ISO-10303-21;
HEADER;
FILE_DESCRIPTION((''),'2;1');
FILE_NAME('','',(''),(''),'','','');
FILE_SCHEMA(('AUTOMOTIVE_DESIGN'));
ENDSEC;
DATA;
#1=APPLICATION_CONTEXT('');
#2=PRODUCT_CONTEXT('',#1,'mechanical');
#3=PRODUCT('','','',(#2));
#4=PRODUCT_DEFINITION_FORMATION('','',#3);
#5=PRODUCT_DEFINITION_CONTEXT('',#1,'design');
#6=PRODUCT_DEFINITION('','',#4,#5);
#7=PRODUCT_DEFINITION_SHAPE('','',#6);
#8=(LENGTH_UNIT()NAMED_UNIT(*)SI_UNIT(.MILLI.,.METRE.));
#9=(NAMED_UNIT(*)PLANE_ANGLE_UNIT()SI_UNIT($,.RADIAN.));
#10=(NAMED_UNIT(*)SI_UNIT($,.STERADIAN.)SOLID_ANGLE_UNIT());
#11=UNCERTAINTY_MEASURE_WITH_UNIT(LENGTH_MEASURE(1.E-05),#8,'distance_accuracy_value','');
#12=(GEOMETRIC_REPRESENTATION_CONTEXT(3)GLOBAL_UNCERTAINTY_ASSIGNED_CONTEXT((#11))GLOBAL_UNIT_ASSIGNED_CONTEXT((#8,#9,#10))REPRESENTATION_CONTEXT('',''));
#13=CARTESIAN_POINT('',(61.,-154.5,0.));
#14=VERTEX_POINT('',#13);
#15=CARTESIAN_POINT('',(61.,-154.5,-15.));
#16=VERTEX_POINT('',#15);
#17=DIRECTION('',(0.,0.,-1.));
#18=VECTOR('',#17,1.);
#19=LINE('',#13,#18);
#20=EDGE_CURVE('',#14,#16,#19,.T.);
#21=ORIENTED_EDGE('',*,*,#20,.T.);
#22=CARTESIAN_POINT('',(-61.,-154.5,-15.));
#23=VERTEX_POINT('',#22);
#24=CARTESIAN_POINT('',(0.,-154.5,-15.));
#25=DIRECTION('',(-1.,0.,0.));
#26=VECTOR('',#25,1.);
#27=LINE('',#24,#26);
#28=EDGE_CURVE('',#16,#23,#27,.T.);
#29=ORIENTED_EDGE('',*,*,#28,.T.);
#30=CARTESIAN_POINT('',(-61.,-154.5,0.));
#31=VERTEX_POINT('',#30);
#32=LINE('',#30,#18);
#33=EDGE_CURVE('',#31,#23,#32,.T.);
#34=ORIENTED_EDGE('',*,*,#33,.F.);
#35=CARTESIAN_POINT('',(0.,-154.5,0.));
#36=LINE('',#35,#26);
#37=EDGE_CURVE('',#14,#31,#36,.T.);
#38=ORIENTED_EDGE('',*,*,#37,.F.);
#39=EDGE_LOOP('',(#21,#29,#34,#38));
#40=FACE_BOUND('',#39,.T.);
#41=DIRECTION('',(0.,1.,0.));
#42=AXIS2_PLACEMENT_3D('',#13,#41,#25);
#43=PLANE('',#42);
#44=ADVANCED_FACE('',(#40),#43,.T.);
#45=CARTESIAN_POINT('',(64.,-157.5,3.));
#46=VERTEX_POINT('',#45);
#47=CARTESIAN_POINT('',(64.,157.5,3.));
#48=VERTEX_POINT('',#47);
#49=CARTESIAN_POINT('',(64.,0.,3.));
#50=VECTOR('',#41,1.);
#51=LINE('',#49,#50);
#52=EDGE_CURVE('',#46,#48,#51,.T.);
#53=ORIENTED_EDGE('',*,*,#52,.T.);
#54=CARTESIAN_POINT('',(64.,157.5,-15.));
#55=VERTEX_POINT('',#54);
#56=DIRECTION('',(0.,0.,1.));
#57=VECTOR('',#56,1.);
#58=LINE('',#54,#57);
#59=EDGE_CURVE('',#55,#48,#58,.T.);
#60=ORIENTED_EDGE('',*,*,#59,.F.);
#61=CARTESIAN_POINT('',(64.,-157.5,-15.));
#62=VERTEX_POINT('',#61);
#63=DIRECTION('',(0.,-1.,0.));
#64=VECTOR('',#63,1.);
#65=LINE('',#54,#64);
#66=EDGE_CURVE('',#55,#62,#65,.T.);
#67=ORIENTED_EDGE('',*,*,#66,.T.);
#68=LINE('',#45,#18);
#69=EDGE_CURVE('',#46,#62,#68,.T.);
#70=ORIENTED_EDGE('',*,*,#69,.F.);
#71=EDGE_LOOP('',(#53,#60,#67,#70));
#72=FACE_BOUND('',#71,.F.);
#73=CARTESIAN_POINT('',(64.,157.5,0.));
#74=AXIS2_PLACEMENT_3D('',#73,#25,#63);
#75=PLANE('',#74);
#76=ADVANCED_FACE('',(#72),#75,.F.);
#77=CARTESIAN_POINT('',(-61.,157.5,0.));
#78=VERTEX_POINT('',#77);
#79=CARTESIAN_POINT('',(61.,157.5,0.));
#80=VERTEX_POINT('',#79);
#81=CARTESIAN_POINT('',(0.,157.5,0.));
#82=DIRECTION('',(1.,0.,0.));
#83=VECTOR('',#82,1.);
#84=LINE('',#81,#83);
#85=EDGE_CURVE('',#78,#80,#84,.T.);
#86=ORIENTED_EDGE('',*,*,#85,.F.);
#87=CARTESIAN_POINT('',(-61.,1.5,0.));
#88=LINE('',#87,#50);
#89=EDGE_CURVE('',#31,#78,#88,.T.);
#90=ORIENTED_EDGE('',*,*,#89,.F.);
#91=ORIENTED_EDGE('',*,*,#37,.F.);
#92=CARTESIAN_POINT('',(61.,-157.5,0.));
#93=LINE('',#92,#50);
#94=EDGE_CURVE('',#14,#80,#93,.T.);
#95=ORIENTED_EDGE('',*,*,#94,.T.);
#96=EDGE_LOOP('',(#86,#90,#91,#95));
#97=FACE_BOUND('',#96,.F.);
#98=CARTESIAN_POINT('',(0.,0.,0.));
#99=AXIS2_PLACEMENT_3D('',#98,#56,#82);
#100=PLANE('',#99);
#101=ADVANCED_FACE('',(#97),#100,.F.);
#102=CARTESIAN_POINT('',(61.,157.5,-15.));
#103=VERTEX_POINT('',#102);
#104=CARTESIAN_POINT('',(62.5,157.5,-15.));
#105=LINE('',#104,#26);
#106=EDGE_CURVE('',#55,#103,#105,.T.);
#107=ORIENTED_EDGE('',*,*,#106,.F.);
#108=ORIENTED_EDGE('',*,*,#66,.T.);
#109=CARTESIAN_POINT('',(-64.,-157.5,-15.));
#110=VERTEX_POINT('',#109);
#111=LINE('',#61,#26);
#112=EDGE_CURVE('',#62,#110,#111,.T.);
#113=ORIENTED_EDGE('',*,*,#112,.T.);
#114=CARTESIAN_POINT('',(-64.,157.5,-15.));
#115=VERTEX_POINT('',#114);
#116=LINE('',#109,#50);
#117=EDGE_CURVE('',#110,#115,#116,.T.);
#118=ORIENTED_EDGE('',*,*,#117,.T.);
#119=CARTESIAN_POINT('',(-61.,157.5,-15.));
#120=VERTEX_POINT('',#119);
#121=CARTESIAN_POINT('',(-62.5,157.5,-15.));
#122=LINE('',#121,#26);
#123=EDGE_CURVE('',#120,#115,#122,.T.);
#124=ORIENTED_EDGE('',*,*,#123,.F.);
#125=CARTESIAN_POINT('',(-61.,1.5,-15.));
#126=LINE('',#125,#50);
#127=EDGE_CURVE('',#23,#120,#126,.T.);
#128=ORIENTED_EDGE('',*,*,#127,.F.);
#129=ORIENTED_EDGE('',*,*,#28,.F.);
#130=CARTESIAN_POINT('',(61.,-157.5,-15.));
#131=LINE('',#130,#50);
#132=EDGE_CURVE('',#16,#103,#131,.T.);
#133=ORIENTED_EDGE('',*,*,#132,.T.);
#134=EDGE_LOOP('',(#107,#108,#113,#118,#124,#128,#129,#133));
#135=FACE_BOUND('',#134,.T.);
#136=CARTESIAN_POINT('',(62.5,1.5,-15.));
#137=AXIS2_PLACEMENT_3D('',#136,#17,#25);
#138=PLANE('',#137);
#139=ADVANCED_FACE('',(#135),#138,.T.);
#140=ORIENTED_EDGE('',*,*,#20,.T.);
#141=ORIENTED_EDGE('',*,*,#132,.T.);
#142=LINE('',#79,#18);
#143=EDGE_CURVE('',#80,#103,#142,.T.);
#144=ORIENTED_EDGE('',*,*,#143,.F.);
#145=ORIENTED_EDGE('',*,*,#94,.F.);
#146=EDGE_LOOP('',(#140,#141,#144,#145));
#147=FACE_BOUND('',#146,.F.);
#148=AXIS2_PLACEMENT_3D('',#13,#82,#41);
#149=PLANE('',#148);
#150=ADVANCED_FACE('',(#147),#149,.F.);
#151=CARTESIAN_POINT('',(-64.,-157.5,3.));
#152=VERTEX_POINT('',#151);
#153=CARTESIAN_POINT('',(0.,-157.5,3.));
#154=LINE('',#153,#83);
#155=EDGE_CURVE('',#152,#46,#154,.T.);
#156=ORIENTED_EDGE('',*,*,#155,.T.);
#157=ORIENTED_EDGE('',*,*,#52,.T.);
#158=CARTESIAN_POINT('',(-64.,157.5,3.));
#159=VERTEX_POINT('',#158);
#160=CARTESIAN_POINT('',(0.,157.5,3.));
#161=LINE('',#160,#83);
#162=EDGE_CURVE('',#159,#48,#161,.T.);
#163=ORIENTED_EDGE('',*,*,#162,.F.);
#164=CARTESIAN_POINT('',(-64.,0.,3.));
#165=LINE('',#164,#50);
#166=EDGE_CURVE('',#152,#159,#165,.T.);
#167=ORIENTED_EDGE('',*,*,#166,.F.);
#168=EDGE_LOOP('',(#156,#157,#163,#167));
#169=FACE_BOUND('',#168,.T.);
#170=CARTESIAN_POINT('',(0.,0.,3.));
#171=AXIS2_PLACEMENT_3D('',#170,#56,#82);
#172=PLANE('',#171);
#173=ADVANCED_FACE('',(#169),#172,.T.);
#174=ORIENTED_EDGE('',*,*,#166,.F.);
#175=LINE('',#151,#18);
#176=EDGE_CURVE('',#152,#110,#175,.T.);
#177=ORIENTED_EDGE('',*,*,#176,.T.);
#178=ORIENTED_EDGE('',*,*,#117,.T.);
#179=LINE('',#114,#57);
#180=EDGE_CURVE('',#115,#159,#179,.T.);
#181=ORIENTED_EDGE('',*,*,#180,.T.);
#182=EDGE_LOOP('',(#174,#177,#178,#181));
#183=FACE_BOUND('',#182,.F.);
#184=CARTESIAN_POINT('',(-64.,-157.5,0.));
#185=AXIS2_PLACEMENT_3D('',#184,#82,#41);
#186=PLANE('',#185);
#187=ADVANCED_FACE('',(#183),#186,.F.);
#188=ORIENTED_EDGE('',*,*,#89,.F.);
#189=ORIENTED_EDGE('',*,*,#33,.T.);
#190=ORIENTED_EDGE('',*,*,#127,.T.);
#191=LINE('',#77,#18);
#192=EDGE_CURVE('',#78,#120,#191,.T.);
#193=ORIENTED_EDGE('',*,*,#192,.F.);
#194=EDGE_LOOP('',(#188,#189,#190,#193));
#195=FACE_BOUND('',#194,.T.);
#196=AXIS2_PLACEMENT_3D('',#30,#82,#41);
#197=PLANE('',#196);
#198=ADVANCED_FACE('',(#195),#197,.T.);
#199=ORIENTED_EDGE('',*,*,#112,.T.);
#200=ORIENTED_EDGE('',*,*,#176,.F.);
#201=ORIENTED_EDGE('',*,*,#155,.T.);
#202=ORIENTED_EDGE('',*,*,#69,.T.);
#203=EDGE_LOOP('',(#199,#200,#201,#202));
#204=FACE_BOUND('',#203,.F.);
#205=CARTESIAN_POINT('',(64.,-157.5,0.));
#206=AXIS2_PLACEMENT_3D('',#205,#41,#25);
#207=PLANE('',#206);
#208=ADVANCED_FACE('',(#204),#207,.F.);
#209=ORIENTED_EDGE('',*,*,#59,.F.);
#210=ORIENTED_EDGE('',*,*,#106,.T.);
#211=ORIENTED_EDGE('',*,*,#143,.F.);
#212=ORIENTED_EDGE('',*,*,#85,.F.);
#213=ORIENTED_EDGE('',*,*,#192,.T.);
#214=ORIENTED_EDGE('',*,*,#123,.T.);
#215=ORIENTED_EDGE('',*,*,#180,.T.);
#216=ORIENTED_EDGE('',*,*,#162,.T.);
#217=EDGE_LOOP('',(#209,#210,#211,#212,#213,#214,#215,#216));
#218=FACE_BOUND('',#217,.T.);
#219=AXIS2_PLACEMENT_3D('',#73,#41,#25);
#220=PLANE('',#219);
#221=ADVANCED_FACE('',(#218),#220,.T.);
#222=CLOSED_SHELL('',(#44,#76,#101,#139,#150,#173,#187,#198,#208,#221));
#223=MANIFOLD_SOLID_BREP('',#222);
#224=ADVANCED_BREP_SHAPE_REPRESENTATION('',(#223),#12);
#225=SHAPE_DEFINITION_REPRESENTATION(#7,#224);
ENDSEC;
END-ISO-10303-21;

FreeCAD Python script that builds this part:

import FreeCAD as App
import Part
import Sketcher


def add_polygon(sketch, points):
    """Adds a closed chain of lines whose ends are joined by coincident constraints."""
    first, n = sketch.GeometryCount, len(points)
    for a, b in zip(points, points[1:] + points[:1]):
        sketch.addGeometry(Part.LineSegment(App.Vector(*a, 0), App.Vector(*b, 0)), False)
    for i in range(n):
        sketch.addConstraint(Sketcher.Constraint("Coincident", first + i, 2, first + (i + 1) % n, 1))

doc = App.newDocument("Part")
body = doc.addObject("PartDesign::Body", "Body")

# Sketch on XY plane
sketch1 = doc.addObject("Sketcher::SketchObject", "Sketch")
body.addObject(sketch1)
sketch1.AttachmentSupport = (doc.XY_Plane, [""])
sketch1.MapMode = "FlatFace"
add_polygon(sketch1, [(-64, 157.5), (-64, -157.5), (64, -157.5), (64, 157.5)])  # lines 0-3
sketch1.addConstraint([
    Sketcher.Constraint("Vertical", 0),
    Sketcher.Constraint("Horizontal", 1),
    Sketcher.Constraint("Vertical", 2),
    Sketcher.Constraint("Horizontal", 3),
    Sketcher.Constraint("Symmetric", 0, 2, 2, 2, -1, 1),
    Sketcher.Constraint("DistanceX", 1, 1, 1, 2, 128.0),
    Sketcher.Constraint("DistanceY", 0, 2, 0, 1, 315.0),
])
pad1 = doc.addObject("PartDesign::Pad", "Pad")
body.addObject(pad1)
pad1.Profile = sketch1
pad1.Length = 3

# Sketch on XY plane
sketch2 = doc.addObject("Sketcher::SketchObject", "Sketch001")
body.addObject(sketch2)
sketch2.AttachmentSupport = (doc.XY_Plane, [""])
sketch2.MapMode = "FlatFace"
add_polygon(sketch2, [(64, 157.5), (64, -157.5), (-64, -157.5), (-64, 157.5), (-61, 157.5), (-61, -154.5), (61, -154.5), (61, 157.5)])  # lines 0-7
sketch2.addConstraint([
    Sketcher.Constraint("Vertical", 0),
    Sketcher.Constraint("Horizontal", 1),
    Sketcher.Constraint("Vertical", 2),
    Sketcher.Constraint("Horizontal", 3),
    Sketcher.Constraint("Vertical", 4),
    Sketcher.Constraint("Horizontal", 5),
    Sketcher.Constraint("Vertical", 6),
    Sketcher.Constraint("Horizontal", 7),
    Sketcher.Constraint("Symmetric", 0, 2, 2, 2, -1, 1),
    Sketcher.Constraint("Symmetric", 3, 2, 6, 2, -2),
    Sketcher.Constraint("DistanceX", 1, 2, 1, 1, 128.0),
    Sketcher.Constraint("DistanceX", 3, 1, 3, 2, 3.0),
    Sketcher.Constraint("DistanceY", 0, 2, 0, 1, 315.0),
    Sketcher.Constraint("DistanceY", 4, 2, 4, 1, 312.0),
])
pad2 = doc.addObject("PartDesign::Pad", "Pad001")
body.addObject(pad2)
pad2.Profile = sketch2
pad2.Length = 15
pad2.Reversed = True

doc.recompute()
